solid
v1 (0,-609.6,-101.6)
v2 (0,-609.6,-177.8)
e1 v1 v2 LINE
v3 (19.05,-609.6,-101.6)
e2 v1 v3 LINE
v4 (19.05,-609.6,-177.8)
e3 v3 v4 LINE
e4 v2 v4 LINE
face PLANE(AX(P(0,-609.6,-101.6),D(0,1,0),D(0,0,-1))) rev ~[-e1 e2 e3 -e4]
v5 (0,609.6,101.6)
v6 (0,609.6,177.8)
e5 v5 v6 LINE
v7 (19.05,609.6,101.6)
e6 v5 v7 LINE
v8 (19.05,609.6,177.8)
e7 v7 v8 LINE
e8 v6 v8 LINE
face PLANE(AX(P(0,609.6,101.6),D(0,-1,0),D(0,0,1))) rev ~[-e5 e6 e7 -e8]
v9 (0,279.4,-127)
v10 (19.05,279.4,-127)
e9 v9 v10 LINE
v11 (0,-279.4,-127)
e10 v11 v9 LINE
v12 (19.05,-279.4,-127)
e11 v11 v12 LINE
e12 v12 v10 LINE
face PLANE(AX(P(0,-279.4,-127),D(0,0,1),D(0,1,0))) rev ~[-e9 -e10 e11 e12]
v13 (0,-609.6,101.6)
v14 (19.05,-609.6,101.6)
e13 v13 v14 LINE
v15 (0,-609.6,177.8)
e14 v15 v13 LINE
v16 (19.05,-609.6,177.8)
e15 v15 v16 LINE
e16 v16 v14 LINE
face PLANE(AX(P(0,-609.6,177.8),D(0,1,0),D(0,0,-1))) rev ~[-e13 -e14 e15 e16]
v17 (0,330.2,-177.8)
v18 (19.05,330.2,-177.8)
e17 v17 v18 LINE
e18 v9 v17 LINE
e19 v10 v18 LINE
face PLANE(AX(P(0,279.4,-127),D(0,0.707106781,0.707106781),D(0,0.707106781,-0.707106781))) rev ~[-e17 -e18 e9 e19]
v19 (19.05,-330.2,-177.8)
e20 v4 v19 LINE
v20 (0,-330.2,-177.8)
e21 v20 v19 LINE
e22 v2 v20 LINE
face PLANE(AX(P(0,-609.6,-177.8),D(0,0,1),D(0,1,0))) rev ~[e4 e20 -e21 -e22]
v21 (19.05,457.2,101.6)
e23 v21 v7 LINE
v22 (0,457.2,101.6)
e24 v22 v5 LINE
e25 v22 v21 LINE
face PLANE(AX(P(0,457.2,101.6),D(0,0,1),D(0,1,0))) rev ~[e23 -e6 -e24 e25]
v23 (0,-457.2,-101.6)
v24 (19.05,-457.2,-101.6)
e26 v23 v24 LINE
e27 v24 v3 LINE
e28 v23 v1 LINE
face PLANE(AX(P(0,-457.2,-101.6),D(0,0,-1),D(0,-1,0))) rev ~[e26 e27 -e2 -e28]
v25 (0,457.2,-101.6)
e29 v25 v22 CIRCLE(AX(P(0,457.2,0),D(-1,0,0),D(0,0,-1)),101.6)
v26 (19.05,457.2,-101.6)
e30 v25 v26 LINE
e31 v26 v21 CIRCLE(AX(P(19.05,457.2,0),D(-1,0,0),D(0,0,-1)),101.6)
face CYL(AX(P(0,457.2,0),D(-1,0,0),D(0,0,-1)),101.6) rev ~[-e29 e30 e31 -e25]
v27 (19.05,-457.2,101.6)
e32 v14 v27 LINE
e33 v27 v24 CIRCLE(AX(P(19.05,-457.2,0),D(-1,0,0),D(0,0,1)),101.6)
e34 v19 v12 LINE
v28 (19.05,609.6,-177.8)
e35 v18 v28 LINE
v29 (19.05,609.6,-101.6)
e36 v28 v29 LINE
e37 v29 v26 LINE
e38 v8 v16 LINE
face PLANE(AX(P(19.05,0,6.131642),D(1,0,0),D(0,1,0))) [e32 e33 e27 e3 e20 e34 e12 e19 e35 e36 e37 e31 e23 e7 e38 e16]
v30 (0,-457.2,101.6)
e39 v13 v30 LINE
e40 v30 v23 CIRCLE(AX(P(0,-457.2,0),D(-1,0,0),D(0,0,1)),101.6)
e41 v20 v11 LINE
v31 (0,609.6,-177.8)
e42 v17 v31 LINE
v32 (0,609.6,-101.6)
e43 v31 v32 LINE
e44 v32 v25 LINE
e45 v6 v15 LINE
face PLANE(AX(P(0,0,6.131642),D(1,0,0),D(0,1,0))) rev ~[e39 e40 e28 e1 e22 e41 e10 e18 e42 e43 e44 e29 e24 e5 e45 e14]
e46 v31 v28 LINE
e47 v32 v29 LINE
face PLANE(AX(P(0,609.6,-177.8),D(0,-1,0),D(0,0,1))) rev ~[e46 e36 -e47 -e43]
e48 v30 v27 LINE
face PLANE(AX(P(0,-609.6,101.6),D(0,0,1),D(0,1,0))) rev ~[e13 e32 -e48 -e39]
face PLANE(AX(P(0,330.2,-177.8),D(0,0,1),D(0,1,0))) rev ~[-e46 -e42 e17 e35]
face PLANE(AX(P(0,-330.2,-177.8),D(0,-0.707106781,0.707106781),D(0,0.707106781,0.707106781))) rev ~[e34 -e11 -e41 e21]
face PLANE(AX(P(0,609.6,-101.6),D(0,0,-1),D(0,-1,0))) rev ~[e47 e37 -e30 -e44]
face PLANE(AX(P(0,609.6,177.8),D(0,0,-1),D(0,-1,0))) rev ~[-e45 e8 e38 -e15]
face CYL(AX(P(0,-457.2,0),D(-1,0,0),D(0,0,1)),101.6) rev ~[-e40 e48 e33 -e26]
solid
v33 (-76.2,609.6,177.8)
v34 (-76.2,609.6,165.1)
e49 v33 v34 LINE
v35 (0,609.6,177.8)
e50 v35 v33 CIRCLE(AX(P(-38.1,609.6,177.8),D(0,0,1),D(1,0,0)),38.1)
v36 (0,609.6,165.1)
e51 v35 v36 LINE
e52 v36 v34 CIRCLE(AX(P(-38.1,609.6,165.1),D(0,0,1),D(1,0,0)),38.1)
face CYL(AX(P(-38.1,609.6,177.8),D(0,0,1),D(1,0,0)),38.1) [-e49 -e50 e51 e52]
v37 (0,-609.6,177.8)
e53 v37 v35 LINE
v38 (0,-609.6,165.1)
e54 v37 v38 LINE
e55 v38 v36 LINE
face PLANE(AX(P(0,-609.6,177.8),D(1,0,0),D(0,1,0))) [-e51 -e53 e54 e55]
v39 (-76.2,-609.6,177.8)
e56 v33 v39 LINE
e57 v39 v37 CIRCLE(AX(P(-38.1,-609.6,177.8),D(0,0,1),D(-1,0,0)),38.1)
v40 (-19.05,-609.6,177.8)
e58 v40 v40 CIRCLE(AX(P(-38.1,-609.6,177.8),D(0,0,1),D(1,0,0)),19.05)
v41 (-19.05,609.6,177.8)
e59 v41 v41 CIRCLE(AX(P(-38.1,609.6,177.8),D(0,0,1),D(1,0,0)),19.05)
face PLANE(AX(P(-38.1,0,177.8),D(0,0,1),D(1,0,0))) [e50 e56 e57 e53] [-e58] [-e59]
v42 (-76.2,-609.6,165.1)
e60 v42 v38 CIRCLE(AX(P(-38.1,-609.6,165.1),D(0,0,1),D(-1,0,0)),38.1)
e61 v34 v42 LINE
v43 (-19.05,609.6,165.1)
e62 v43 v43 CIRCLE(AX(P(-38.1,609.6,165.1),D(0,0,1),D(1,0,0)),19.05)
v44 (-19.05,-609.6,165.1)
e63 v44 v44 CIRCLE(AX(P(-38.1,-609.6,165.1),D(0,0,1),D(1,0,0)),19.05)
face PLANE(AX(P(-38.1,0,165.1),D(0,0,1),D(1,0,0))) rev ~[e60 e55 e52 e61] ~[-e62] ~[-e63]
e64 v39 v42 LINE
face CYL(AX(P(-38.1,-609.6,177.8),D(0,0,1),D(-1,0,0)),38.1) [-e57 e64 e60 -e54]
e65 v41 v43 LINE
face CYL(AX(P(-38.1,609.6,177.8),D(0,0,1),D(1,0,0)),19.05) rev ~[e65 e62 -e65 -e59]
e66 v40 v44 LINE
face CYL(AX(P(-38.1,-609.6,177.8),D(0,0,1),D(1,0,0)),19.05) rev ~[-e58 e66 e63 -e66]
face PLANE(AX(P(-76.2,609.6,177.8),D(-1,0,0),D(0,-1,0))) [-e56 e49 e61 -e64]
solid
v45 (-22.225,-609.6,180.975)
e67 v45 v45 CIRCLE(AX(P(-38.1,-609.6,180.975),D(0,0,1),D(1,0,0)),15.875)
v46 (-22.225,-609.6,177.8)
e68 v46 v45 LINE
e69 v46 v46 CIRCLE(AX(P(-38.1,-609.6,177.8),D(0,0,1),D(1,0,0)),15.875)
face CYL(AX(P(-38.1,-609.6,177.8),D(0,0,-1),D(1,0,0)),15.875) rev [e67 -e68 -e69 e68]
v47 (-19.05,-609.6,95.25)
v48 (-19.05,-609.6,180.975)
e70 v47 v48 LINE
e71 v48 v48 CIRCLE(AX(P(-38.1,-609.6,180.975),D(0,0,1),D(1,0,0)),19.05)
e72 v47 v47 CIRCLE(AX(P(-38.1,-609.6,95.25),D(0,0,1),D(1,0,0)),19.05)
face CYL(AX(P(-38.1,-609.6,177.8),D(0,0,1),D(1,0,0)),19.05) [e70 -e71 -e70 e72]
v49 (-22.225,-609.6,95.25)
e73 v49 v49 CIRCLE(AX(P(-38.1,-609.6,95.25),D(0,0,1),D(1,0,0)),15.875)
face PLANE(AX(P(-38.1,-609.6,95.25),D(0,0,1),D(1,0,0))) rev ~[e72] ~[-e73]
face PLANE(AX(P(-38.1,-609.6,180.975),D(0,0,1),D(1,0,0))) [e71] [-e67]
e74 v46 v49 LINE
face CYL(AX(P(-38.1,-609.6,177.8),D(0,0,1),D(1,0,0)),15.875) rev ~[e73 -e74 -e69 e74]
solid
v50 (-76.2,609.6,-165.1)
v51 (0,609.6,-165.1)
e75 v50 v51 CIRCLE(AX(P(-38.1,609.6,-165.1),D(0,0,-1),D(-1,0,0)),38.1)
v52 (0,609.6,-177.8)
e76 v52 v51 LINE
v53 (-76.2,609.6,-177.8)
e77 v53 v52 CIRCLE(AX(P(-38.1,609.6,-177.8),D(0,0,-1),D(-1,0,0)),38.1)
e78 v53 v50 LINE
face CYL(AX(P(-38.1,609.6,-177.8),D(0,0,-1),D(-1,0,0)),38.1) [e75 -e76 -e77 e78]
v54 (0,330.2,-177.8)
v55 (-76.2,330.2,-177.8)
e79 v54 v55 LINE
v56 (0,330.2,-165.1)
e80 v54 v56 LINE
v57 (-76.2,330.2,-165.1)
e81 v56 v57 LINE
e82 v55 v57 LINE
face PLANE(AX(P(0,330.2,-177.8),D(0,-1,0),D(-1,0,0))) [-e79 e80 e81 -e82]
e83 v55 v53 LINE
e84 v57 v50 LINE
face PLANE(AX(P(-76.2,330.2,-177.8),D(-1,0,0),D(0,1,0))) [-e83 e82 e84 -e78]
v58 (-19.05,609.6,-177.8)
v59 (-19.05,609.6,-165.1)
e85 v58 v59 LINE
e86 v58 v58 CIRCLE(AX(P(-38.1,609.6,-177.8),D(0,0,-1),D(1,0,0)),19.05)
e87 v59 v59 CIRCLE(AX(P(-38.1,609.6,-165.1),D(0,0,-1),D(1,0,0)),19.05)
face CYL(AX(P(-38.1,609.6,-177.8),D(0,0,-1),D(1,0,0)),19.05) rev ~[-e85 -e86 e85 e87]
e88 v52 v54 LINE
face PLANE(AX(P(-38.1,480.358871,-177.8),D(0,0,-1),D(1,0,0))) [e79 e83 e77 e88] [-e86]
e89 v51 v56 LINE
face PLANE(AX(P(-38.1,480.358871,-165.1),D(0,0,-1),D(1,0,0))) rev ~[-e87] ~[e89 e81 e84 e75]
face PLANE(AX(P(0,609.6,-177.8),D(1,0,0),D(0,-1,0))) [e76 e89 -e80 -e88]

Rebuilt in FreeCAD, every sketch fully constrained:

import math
import FreeCAD as App
import Part
import Sketcher
from FreeCAD import Vector
Q = App.Units.Quantity

doc = App.newDocument("Part")
body = doc.addObject("PartDesign::Body", "Body")

# Sketch on YZ plane
sketch1 = doc.addObject("Sketcher::SketchObject", "Sketch")
body.addObject(sketch1)
sketch1.AttachmentSupport = (doc.YZ_Plane, [""])
sketch1.MapMode = "FlatFace"
sketch1.addGeometry(Part.LineSegment(Vector(610, 178, 0), Vector(-610, 178, 0)), False)
sketch1.addGeometry(Part.LineSegment(Vector(-610, 178, 0), Vector(-610, 102, 0)), False)
sketch1.addGeometry(Part.LineSegment(Vector(-610, 102, 0), Vector(-457, 102, 0)), False)
sketch1.addGeometry(Part.ArcOfCircle(Part.Circle(Vector(-457, 0, 0), Vector(0, 0, 1), 102), math.radians(-90), math.radians(90)), False)
sketch1.addGeometry(Part.LineSegment(Vector(-457, -102, 0), Vector(-610, -102, 0)), False)
sketch1.addGeometry(Part.LineSegment(Vector(-610, -102, 0), Vector(-610, -178, 0)), False)
sketch1.addGeometry(Part.LineSegment(Vector(-610, -178, 0), Vector(-330, -178, 0)), False)
sketch1.addGeometry(Part.LineSegment(Vector(-330, -178, 0), Vector(-279, -127, 0)), False)
sketch1.addGeometry(Part.LineSegment(Vector(-279, -127, 0), Vector(279, -127, 0)), False)
sketch1.addGeometry(Part.LineSegment(Vector(279, -127, 0), Vector(330, -178, 0)), False)
sketch1.addGeometry(Part.LineSegment(Vector(330, -178, 0), Vector(610, -178, 0)), False)
sketch1.addGeometry(Part.LineSegment(Vector(610, -178, 0), Vector(610, -102, 0)), False)
sketch1.addGeometry(Part.LineSegment(Vector(610, -102, 0), Vector(457, -102, 0)), False)
sketch1.addGeometry(Part.ArcOfCircle(Part.Circle(Vector(457, 0, 0), Vector(0, 0, 1), 102), math.radians(90), math.radians(270)), False)
sketch1.addGeometry(Part.LineSegment(Vector(457, 102, 0), Vector(610, 102, 0)), False)
sketch1.addGeometry(Part.LineSegment(Vector(610, 102, 0), Vector(610, 178, 0)), False)
sketch1.addConstraint(Sketcher.Constraint("Coincident", 0, 2, 1, 1))
sketch1.addConstraint(Sketcher.Constraint("Coincident", 1, 2, 2, 1))
sketch1.addConstraint(Sketcher.Constraint("Tangent", 2, 2, 3, 2))
sketch1.addConstraint(Sketcher.Constraint("Tangent", 3, 1, 4, 1))
sketch1.addConstraint(Sketcher.Constraint("Coincident", 4, 2, 5, 1))
sketch1.addConstraint(Sketcher.Constraint("Coincident", 5, 2, 6, 1))
sketch1.addConstraint(Sketcher.Constraint("Coincident", 6, 2, 7, 1))
sketch1.addConstraint(Sketcher.Constraint("Coincident", 7, 2, 8, 1))
sketch1.addConstraint(Sketcher.Constraint("Coincident", 8, 2, 9, 1))
sketch1.addConstraint(Sketcher.Constraint("Coincident", 9, 2, 10, 1))
sketch1.addConstraint(Sketcher.Constraint("Coincident", 10, 2, 11, 1))
sketch1.addConstraint(Sketcher.Constraint("Coincident", 11, 2, 12, 1))
sketch1.addConstraint(Sketcher.Constraint("Tangent", 12, 2, 13, 2))
sketch1.addConstraint(Sketcher.Constraint("Tangent", 13, 1, 14, 1))
sketch1.addConstraint(Sketcher.Constraint("Coincident", 14, 2, 15, 1))
sketch1.addConstraint(Sketcher.Constraint("Coincident", 15, 2, 0, 1))
sketch1.addConstraint(Sketcher.Constraint("Horizontal", 0))
sketch1.addConstraint(Sketcher.Constraint("Vertical", 1))
sketch1.addConstraint(Sketcher.Constraint("Horizontal", 2))
sketch1.addConstraint(Sketcher.Constraint("Horizontal", 4))
sketch1.addConstraint(Sketcher.Constraint("Vertical", 5))
sketch1.addConstraint(Sketcher.Constraint("Horizontal", 6))
sketch1.addConstraint(Sketcher.Constraint("Horizontal", 8))
sketch1.addConstraint(Sketcher.Constraint("Horizontal", 10))
sketch1.addConstraint(Sketcher.Constraint("Vertical", 11))
sketch1.addConstraint(Sketcher.Constraint("Horizontal", 12))
sketch1.addConstraint(Sketcher.Constraint("Horizontal", 14))
sketch1.addConstraint(Sketcher.Constraint("Vertical", 15))
sketch1.addConstraint(Sketcher.Constraint("Equal", 3, 13))
sketch1.addConstraint(Sketcher.Constraint("Symmetric", 3, 3, 13, 3, -1, 1))
sketch1.addConstraint(Sketcher.Constraint("Symmetric", 0, 2, 10, 2, -1, 1))
sketch1.addConstraint(Sketcher.Constraint("Symmetric", 5, 2, 15, 2, -1, 1))
sketch1.addConstraint(Sketcher.Constraint("Symmetric", 4, 2, 11, 2, -2))
sketch1.addConstraint(Sketcher.Constraint("Perpendicular", 7, 9))
sketch1.addConstraint(Sketcher.Constraint("Equal", 6, 10))
sketch1.addConstraint(Sketcher.Constraint("Equal", 7, 9))
sketch1.addConstraint(Sketcher.Constraint("Radius", 3, Q("4 in")))
sketch1.addConstraint(Sketcher.Constraint("DistanceX", 0, 2, 0, 1, Q("48 in")))
sketch1.addConstraint(Sketcher.Constraint("DistanceX", 2, 1, 2, 2, Q("6 in")))
sketch1.addConstraint(Sketcher.Constraint("DistanceX", 6, 1, 6, 2, Q("11 in")))
sketch1.addConstraint(Sketcher.Constraint("DistanceX", 8, 1, 8, 2, Q("22 in")))
sketch1.addConstraint(Sketcher.Constraint("DistanceY", 1, 2, 1, 1, Q("3 in")))
pad1 = doc.addObject("PartDesign::Pad", "Pad")
body.addObject(pad1)
pad1.Profile = sketch1
pad1.Length = Q("0.75 in")
body2 = doc.addObject("PartDesign::Body", "Body001")

# Sketch on XY plane
sketch2 = doc.addObject("Sketcher::SketchObject", "Sketch001")
body2.addObject(sketch2)
sketch2.AttachmentSupport = (doc.getObject("XY_Plane001"), [""])
sketch2.MapMode = "FlatFace"
sketch2.AttachmentOffset = App.Placement(Vector(0, 0, 7 * 25.4), App.Rotation())
sketch2.addGeometry(Part.ArcOfCircle(Part.Circle(Vector(-38, -610, 0), Vector(0, 0, 1), 38), math.radians(180), math.radians(360)), False)
sketch2.addGeometry(Part.LineSegment(Vector(0, -610, 0), Vector(0, 610, 0)), False)
sketch2.addGeometry(Part.ArcOfCircle(Part.Circle(Vector(-38, 610, 0), Vector(0, 0, 1), 38), math.radians(0), math.radians(180)), False)
sketch2.addGeometry(Part.LineSegment(Vector(-76, 610, 0), Vector(-76, -610, 0)), False)
sketch2.addGeometry(Part.Circle(Vector(-38, -610, 0), Vector(0, 0, 1), 19), False)
sketch2.addGeometry(Part.Circle(Vector(-38, 610, 0), Vector(0, 0, 1), 19), False)
sketch2.addConstraint(Sketcher.Constraint("Tangent", 0, 2, 1, 1))
sketch2.addConstraint(Sketcher.Constraint("Tangent", 1, 2, 2, 1))
sketch2.addConstraint(Sketcher.Constraint("Tangent", 2, 2, 3, 1))
sketch2.addConstraint(Sketcher.Constraint("Tangent", 3, 2, 0, 1))
sketch2.addConstraint(Sketcher.Constraint("Vertical", 1))
sketch2.addConstraint(Sketcher.Constraint("Vertical", 3))
sketch2.addConstraint(Sketcher.Constraint("Coincident", 4, 3, 0, 3))
sketch2.addConstraint(Sketcher.Constraint("Coincident", 5, 3, 2, 3))
sketch2.addConstraint(Sketcher.Constraint("Equal", 4, 5))
sketch2.addConstraint(Sketcher.Constraint("Symmetric", 0, 2, 1, 2, -1, 1))
sketch2.addConstraint(Sketcher.Constraint("Diameter", 4, Q("1.5 in")))
sketch2.addConstraint(Sketcher.Constraint("Radius", 0, Q("1.5 in")))
sketch2.addConstraint(Sketcher.Constraint("DistanceY", 1, 1, 1, 2, Q("48 in")))
pad2 = doc.addObject("PartDesign::Pad", "Pad001")
body2.addObject(pad2)
pad2.Profile = sketch2
pad2.Length = Q("0.5 in")
pad2.Reversed = True
body3 = doc.addObject("PartDesign::Body", "Body002")

# Sketch on XY plane
sketch3 = doc.addObject("Sketcher::SketchObject", "Sketch002")
body3.addObject(sketch3)
sketch3.AttachmentSupport = (doc.getObject("XY_Plane002"), [""])
sketch3.MapMode = "FlatFace"
sketch3.AttachmentOffset = App.Placement(Vector(0, 0, -7 * 25.4), App.Rotation())
sketch3.addGeometry(Part.LineSegment(Vector(0, 610, 0), Vector(0, 330, 0)), False)
sketch3.addGeometry(Part.LineSegment(Vector(0, 330, 0), Vector(-76, 330, 0)), False)
sketch3.addGeometry(Part.LineSegment(Vector(-76, 330, 0), Vector(-76, 610, 0)), False)
sketch3.addGeometry(Part.ArcOfCircle(Part.Circle(Vector(-38, 610, 0), Vector(0, 0, 1), 38), math.radians(0), math.radians(180)), False)
sketch3.addGeometry(Part.Circle(Vector(-38, 610, 0), Vector(0, 0, 1), 19), False)
sketch3.addConstraint(Sketcher.Constraint("Coincident", 0, 2, 1, 1))
sketch3.addConstraint(Sketcher.Constraint("Coincident", 1, 2, 2, 1))
sketch3.addConstraint(Sketcher.Constraint("Tangent", 2, 2, 3, 2))
sketch3.addConstraint(Sketcher.Constraint("Tangent", 3, 1, 0, 1))
sketch3.addConstraint(Sketcher.Constraint("Vertical", 0))
sketch3.addConstraint(Sketcher.Constraint("Horizontal", 1))
sketch3.addConstraint(Sketcher.Constraint("Vertical", 2))
sketch3.addConstraint(Sketcher.Constraint("Coincident", 4, 3, 3, 3))
sketch3.addConstraint(Sketcher.Constraint("PointOnObject", 0, 2, -2))
sketch3.addConstraint(Sketcher.Constraint("Diameter", 4, Q("1.5 in")))
sketch3.addConstraint(Sketcher.Constraint("Radius", 3, Q("1.5 in")))
sketch3.addConstraint(Sketcher.Constraint("DistanceY", 0, 2, 0, 1, Q("11 in")))
sketch3.addConstraint(Sketcher.Constraint("DistanceY", -1, 1, 3, 3, Q("24 in")))
pad3 = doc.addObject("PartDesign::Pad", "Pad002")
body3.addObject(pad3)
pad3.Profile = sketch3
pad3.Length = Q("0.5 in")
body4 = doc.addObject("PartDesign::Body", "Body003")

# Sketch on XY plane
sketch4 = doc.addObject("Sketcher::SketchObject", "Sketch003")
body4.addObject(sketch4)
sketch4.AttachmentSupport = (doc.getObject("XY_Plane003"), [""])
sketch4.MapMode = "FlatFace"
sketch4.AttachmentOffset = App.Placement(Vector(0, 0, 7 * 25.4), App.Rotation())
sketch4.addGeometry(Part.Circle(Vector(-38, -610, 0), Vector(0, 0, 1), 19), False)
sketch4.addGeometry(Part.Circle(Vector(-38, -610, 0), Vector(0, 0, 1), 16), False)
sketch4.addConstraint(Sketcher.Constraint("Coincident", 1, 3, 0, 3))
sketch4.addConstraint(Sketcher.Constraint("Diameter", 0, Q("1.5 in")))
sketch4.addConstraint(Sketcher.Constraint("Diameter", 1, Q("1.25 in")))
sketch4.addConstraint(Sketcher.Constraint("DistanceY", 0, 3, -1, 1, Q("24 in")))
sketch4.addConstraint(Sketcher.Constraint("DistanceX", 0, 3, -1, 1, Q("1.5 in")))
pad4 = doc.addObject("PartDesign::Pad", "Pad003")
body4.addObject(pad4)
pad4.Profile = sketch4
pad4.Type = "TwoLengths"
pad4.Length = Q("0.125 in")
pad4.Length2 = Q("3.25 in")

doc.recompute()
